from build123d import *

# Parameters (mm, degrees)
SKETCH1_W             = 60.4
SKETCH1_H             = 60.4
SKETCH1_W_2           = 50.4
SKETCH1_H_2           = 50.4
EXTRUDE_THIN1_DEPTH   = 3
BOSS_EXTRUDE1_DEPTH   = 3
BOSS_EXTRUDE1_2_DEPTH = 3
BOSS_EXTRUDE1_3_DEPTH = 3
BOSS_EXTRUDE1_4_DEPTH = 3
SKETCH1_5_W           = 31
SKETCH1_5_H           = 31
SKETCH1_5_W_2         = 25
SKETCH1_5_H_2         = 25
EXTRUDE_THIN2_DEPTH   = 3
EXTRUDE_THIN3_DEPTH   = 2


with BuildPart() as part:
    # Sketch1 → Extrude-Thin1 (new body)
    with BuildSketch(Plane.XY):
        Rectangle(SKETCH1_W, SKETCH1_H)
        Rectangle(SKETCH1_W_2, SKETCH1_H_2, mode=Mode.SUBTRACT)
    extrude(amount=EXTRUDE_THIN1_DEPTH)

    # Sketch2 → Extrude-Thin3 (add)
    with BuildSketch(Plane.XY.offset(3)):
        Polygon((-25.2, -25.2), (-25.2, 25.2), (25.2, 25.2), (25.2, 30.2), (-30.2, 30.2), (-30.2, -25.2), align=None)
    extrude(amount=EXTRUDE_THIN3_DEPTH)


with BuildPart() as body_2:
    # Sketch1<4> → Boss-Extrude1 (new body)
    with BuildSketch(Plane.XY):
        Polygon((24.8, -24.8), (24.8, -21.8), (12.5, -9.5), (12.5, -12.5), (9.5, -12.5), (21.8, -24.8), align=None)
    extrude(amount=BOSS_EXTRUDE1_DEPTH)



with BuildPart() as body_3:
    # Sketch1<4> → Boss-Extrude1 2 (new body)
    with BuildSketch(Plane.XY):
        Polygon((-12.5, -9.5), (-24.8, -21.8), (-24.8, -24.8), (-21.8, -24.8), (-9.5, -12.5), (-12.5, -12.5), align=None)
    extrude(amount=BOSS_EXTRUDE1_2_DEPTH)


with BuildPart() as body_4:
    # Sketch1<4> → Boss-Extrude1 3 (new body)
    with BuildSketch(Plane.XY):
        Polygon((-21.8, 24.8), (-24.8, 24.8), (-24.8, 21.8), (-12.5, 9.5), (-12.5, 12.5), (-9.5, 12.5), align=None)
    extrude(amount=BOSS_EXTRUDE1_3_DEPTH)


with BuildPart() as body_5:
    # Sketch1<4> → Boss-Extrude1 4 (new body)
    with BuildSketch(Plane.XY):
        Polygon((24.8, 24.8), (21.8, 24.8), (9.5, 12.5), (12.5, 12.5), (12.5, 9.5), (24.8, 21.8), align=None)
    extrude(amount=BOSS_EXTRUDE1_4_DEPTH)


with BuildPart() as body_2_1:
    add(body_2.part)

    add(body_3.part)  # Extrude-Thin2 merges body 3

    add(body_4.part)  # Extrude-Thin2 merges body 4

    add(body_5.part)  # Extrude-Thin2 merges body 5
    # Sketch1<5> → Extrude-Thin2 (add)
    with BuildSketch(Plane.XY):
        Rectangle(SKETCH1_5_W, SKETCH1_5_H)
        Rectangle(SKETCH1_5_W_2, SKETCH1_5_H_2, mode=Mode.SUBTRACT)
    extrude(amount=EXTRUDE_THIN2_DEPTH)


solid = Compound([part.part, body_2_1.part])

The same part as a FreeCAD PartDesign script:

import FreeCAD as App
import Part
import Sketcher

V = App.Vector
Q = App.Units.Quantity


def add_polygon(sketch, points):
    """Adds a closed chain of lines whose ends are joined by coincident constraints."""
    first, n = sketch.GeometryCount, len(points)
    for a, b in zip(points, points[1:] + points[:1]):
        sketch.addGeometry(Part.LineSegment(App.Vector(*a, 0), App.Vector(*b, 0)), False)
    for i in range(n):
        sketch.addConstraint(Sketcher.Constraint("Coincident", first + i, 2, first + (i + 1) % n, 1))

doc = App.newDocument("Part")
params = doc.addObject("Spreadsheet::Sheet", "Params")
for row, (alias, value) in enumerate([
    ("sketch1_width", "60.4 mm"),
    ("sketch1_width2", "50.4 mm"),
    ("pad1_length", "3 mm"),
    ("sketch2_width", "5 mm"),
    ("sketch2_width2", "50.4 mm"),
    ("pad2_length", "2 mm"),
    ("sketch3_width", "3 mm"),
    ("pad3_length", "3 mm"),
    ("sketch4_width", "3 mm"),
    ("pad4_length", "3 mm"),
    ("sketch5_width", "3 mm"),
    ("pad5_length", "3 mm"),
    ("sketch6_width", "3 mm"),
    ("pad6_length", "3 mm"),
    ("sketch7_width", "31 mm"),
    ("sketch7_width2", "25 mm"),
    ("pad7_length", "3 mm"),
], start=1):
    params.set(f"A{row}", alias)
    params.set(f"B{row}", "=" + value)
    params.setAlias(f"B{row}", alias)

body = doc.addObject("PartDesign::Body", "Body")

# Sketch on XY plane
sketch1 = body.newObject("Sketcher::SketchObject", "Sketch")
sketch1.AttachmentSupport = (doc.getObject("XY_Plane"), [""])
sketch1.MapMode = "FlatFace"
add_polygon(sketch1, [(-30, 30), (-30, -30), (30, -30), (30, 30)])  # lines 0-3
add_polygon(sketch1, [(25, -25), (-25, -25), (-25, 25), (25, 25)])  # lines 4-7
sketch1.addConstraint([
    Sketcher.Constraint("Vertical", 0),
    Sketcher.Constraint("Horizontal", 1),
    Sketcher.Constraint("Vertical", 2),
    Sketcher.Constraint("Horizontal", 3),
    Sketcher.Constraint("Horizontal", 4),
    Sketcher.Constraint("Vertical", 5),
    Sketcher.Constraint("Horizontal", 6),
    Sketcher.Constraint("Vertical", 7),
    Sketcher.Constraint("Symmetric", 0, 2, 2, 2, -1, 1),
    Sketcher.Constraint("Symmetric", 4, 2, 6, 2, -1, 1),
    Sketcher.Constraint("Equal", 3, 0),
    Sketcher.Constraint("Equal", 6, 5),
    Sketcher.Constraint("DistanceX", 1, 1, 1, 2, 60.4),
    Sketcher.Constraint("DistanceX", 4, 2, 4, 1, 50.4),
])
sketch1.setExpression("Constraints[20]", "Params.sketch1_width")
sketch1.setExpression("Constraints[21]", "Params.sketch1_width2")
pad1 = body.newObject("PartDesign::Pad", "Pad")
pad1.Profile = sketch1
pad1.setExpression("Length", "Params.pad1_length")

# Sketch on XY plane
sketch2 = body.newObject("Sketcher::SketchObject", "Sketch001")
sketch2.AttachmentSupport = (doc.getObject("XY_Plane"), [""])
sketch2.MapMode = "FlatFace"
sketch2.AttachmentOffset = App.Placement(V(0, 0, 3), App.Rotation())
add_polygon(sketch2, [(-25, -25), (-25, 25), (25, 25), (25, 30), (-30, 30), (-30, -25)])  # lines 0-5
sketch2.addConstraint([
    Sketcher.Constraint("Vertical", 0),
    Sketcher.Constraint("Horizontal", 1),
    Sketcher.Constraint("Vertical", 2),
    Sketcher.Constraint("Horizontal", 3),
    Sketcher.Constraint("Vertical", 4),
    Sketcher.Constraint("Horizontal", 5),
    Sketcher.Constraint("Symmetric", 1, 2, 5, 2, -1, 1),
    Sketcher.Constraint("Equal", 1, 0),
    Sketcher.Constraint("Equal", 5, 2),
    Sketcher.Constraint("DistanceX", 5, 1, 5, 2, 5.0),
    Sketcher.Constraint("DistanceX", 1, 1, 1, 2, 50.4),
])
sketch2.setExpression("Constraints[15]", "Params.sketch2_width")
sketch2.setExpression("Constraints[16]", "Params.sketch2_width2")
pad2 = body.newObject("PartDesign::Pad", "Pad001")
pad2.Profile = sketch2
pad2.setExpression("Length", "Params.pad2_length")
body2 = doc.addObject("PartDesign::Body", "Body001")

# Sketch on XY plane
sketch3 = body2.newObject("Sketcher::SketchObject", "Sketch002")
sketch3.AttachmentSupport = (doc.getObject("XY_Plane001"), [""])
sketch3.MapMode = "FlatFace"
add_polygon(sketch3, [(24.8, -24.8), (24.8, -21.8), (12.5, -9.5), (12.5, -12.5), (9.5, -12.5), (21.8, -24.8)])  # lines 0-5
sketch3.addConstraint([
    Sketcher.Constraint("Vertical", 0),
    Sketcher.Constraint("Vertical", 2),
    Sketcher.Constraint("Horizontal", 3),
    Sketcher.Constraint("Horizontal", 5),
    Sketcher.Constraint("Parallel", 1, 4),
    Sketcher.Constraint("Equal", 3, 5),
    Sketcher.Constraint("Equal", 5, 0),
    Sketcher.Constraint("DistanceX", 3, 2, 3, 1, 3.0),
    Sketcher.Constraint("Angle", 1, Q("135 deg")),
    Sketcher.Constraint("DistanceX", -1, 1, 0, 2, 24.8),
    Sketcher.Constraint("DistanceY", 0, 2, -1, 1, 21.8),
    Sketcher.Constraint("DistanceX", -1, 1, 1, 2, 12.5),
])
sketch3.setExpression("Constraints[13]", "Params.sketch3_width")
pad3 = body2.newObject("PartDesign::Pad", "Pad002")
pad3.Profile = sketch3
pad3.setExpression("Length", "Params.pad3_length")
body3 = doc.addObject("PartDesign::Body", "Body002")

# Sketch on XY plane
sketch4 = body3.newObject("Sketcher::SketchObject", "Sketch003")
sketch4.AttachmentSupport = (doc.getObject("XY_Plane002"), [""])
sketch4.MapMode = "FlatFace"
add_polygon(sketch4, [(-12.5, -9.5), (-24.8, -21.8), (-24.8, -24.8), (-21.8, -24.8), (-9.5, -12.5), (-12.5, -12.5)])  # lines 0-5
sketch4.addConstraint([
    Sketcher.Constraint("Vertical", 1),
    Sketcher.Constraint("Horizontal", 2),
    Sketcher.Constraint("Horizontal", 4),
    Sketcher.Constraint("Vertical", 5),
    Sketcher.Constraint("Parallel", 0, 3),
    Sketcher.Constraint("Equal", 2, 4),
    Sketcher.Constraint("Equal", 4, 1),
    Sketcher.Constraint("DistanceX", 2, 1, 2, 2, 3.0),
    Sketcher.Constraint("Angle", 0, Q("-135 deg")),
    Sketcher.Constraint("DistanceX", 0, 2, -1, 1, 24.8),
    Sketcher.Constraint("DistanceY", 0, 2, -1, 1, 21.8),
    Sketcher.Constraint("DistanceX", 3, 2, -1, 1, 9.5),
])
sketch4.setExpression("Constraints[13]", "Params.sketch4_width")
pad4 = body3.newObject("PartDesign::Pad", "Pad003")
pad4.Profile = sketch4
pad4.setExpression("Length", "Params.pad4_length")
body4 = doc.addObject("PartDesign::Body", "Body003")

# Sketch on XY plane
sketch5 = body4.newObject("Sketcher::SketchObject", "Sketch004")
sketch5.AttachmentSupport = (doc.getObject("XY_Plane003"), [""])
sketch5.MapMode = "FlatFace"
add_polygon(sketch5, [(-21.8, 24.8), (-24.8, 24.8), (-24.8, 21.8), (-12.5, 9.5), (-12.5, 12.5), (-9.5, 12.5)])  # lines 0-5
sketch5.addConstraint([
    Sketcher.Constraint("Horizontal", 0),
    Sketcher.Constraint("Vertical", 1),
    Sketcher.Constraint("Vertical", 3),
    Sketcher.Constraint("Horizontal", 4),
    Sketcher.Constraint("Parallel", 2, 5),
    Sketcher.Constraint("Equal", 0, 4),
    Sketcher.Constraint("Equal", 4, 1),
    Sketcher.Constraint("DistanceX", 0, 2, 0, 1, 3.0),
    Sketcher.Constraint("Angle", 2, Q("-45 deg")),
    Sketcher.Constraint("DistanceX", 0, 2, -1, 1, 24.8),
    Sketcher.Constraint("DistanceY", -1, 1, 0, 2, 24.8),
    Sketcher.Constraint("DistanceX", 2, 2, -1, 1, 12.5),
])
sketch5.setExpression("Constraints[13]", "Params.sketch5_width")
pad5 = body4.newObject("PartDesign::Pad", "Pad004")
pad5.Profile = sketch5
pad5.setExpression("Length", "Params.pad5_length")
body5 = doc.addObject("PartDesign::Body", "Body004")

# Sketch on XY plane
sketch6 = body5.newObject("Sketcher::SketchObject", "Sketch005")
sketch6.AttachmentSupport = (doc.getObject("XY_Plane004"), [""])
sketch6.MapMode = "FlatFace"
add_polygon(sketch6, [(24.8, 24.8), (21.8, 24.8), (9.5, 12.5), (12.5, 12.5), (12.5, 9.5), (24.8, 21.8)])  # lines 0-5
sketch6.addConstraint([
    Sketcher.Constraint("Horizontal", 0),
    Sketcher.Constraint("Horizontal", 2),
    Sketcher.Constraint("Vertical", 3),
    Sketcher.Constraint("Vertical", 5),
    Sketcher.Constraint("Parallel", 1, 4),
    Sketcher.Constraint("Equal", 0, 2),
    Sketcher.Constraint("Equal", 2, 3),
    Sketcher.Constraint("DistanceX", 0, 2, 0, 1, 3.0),
    Sketcher.Constraint("Angle", 1, Q("-135 deg")),
    Sketcher.Constraint("DistanceX", -1, 1, 0, 2, 21.8),
    Sketcher.Constraint("DistanceY", -1, 1, 0, 2, 24.8),
    Sketcher.Constraint("DistanceX", -1, 1, 1, 2, 9.5),
])
sketch6.setExpression("Constraints[13]", "Params.sketch6_width")
pad6 = body5.newObject("PartDesign::Pad", "Pad005")
pad6.Profile = sketch6
pad6.setExpression("Length", "Params.pad6_length")
body2.AllowCompound = True
doc.recompute()

boolean = body2.newObject("PartDesign::Boolean", "Boolean")
boolean.Type = "Fuse"
boolean.addObjects([body3])
doc.recompute()

boolean2 = body2.newObject("PartDesign::Boolean", "Boolean001")
boolean2.Type = "Fuse"
boolean2.addObjects([body4])
doc.recompute()

boolean3 = body2.newObject("PartDesign::Boolean", "Boolean002")
boolean3.Type = "Fuse"
boolean3.addObjects([body5])

# Sketch on XY plane
sketch7 = body2.newObject("Sketcher::SketchObject", "Sketch006")
sketch7.AttachmentSupport = (doc.getObject("XY_Plane001"), [""])
sketch7.MapMode = "FlatFace"
add_polygon(sketch7, [(-16, 16), (-16, -16), (16, -16), (16, 16)])  # lines 0-3
add_polygon(sketch7, [(12, -12), (-12, -12), (-12, 12), (12, 12)])  # lines 4-7
sketch7.addConstraint([
    Sketcher.Constraint("Vertical", 0),
    Sketcher.Constraint("Horizontal", 1),
    Sketcher.Constraint("Vertical", 2),
    Sketcher.Constraint("Horizontal", 3),
    Sketcher.Constraint("Horizontal", 4),
    Sketcher.Constraint("Vertical", 5),
    Sketcher.Constraint("Horizontal", 6),
    Sketcher.Constraint("Vertical", 7),
    Sketcher.Constraint("Symmetric", 0, 2, 2, 2, -1, 1),
    Sketcher.Constraint("Symmetric", 4, 2, 6, 2, -1, 1),
    Sketcher.Constraint("Equal", 3, 0),
    Sketcher.Constraint("Equal", 6, 5),
    Sketcher.Constraint("DistanceX", 1, 1, 1, 2, 31.0),
    Sketcher.Constraint("DistanceX", 4, 2, 4, 1, 25.0),
])
sketch7.setExpression("Constraints[20]", "Params.sketch7_width")
sketch7.setExpression("Constraints[21]", "Params.sketch7_width2")
pad7 = body2.newObject("PartDesign::Pad", "Pad006")
pad7.Profile = sketch7
pad7.setExpression("Length", "Params.pad7_length")

doc.recompute()
